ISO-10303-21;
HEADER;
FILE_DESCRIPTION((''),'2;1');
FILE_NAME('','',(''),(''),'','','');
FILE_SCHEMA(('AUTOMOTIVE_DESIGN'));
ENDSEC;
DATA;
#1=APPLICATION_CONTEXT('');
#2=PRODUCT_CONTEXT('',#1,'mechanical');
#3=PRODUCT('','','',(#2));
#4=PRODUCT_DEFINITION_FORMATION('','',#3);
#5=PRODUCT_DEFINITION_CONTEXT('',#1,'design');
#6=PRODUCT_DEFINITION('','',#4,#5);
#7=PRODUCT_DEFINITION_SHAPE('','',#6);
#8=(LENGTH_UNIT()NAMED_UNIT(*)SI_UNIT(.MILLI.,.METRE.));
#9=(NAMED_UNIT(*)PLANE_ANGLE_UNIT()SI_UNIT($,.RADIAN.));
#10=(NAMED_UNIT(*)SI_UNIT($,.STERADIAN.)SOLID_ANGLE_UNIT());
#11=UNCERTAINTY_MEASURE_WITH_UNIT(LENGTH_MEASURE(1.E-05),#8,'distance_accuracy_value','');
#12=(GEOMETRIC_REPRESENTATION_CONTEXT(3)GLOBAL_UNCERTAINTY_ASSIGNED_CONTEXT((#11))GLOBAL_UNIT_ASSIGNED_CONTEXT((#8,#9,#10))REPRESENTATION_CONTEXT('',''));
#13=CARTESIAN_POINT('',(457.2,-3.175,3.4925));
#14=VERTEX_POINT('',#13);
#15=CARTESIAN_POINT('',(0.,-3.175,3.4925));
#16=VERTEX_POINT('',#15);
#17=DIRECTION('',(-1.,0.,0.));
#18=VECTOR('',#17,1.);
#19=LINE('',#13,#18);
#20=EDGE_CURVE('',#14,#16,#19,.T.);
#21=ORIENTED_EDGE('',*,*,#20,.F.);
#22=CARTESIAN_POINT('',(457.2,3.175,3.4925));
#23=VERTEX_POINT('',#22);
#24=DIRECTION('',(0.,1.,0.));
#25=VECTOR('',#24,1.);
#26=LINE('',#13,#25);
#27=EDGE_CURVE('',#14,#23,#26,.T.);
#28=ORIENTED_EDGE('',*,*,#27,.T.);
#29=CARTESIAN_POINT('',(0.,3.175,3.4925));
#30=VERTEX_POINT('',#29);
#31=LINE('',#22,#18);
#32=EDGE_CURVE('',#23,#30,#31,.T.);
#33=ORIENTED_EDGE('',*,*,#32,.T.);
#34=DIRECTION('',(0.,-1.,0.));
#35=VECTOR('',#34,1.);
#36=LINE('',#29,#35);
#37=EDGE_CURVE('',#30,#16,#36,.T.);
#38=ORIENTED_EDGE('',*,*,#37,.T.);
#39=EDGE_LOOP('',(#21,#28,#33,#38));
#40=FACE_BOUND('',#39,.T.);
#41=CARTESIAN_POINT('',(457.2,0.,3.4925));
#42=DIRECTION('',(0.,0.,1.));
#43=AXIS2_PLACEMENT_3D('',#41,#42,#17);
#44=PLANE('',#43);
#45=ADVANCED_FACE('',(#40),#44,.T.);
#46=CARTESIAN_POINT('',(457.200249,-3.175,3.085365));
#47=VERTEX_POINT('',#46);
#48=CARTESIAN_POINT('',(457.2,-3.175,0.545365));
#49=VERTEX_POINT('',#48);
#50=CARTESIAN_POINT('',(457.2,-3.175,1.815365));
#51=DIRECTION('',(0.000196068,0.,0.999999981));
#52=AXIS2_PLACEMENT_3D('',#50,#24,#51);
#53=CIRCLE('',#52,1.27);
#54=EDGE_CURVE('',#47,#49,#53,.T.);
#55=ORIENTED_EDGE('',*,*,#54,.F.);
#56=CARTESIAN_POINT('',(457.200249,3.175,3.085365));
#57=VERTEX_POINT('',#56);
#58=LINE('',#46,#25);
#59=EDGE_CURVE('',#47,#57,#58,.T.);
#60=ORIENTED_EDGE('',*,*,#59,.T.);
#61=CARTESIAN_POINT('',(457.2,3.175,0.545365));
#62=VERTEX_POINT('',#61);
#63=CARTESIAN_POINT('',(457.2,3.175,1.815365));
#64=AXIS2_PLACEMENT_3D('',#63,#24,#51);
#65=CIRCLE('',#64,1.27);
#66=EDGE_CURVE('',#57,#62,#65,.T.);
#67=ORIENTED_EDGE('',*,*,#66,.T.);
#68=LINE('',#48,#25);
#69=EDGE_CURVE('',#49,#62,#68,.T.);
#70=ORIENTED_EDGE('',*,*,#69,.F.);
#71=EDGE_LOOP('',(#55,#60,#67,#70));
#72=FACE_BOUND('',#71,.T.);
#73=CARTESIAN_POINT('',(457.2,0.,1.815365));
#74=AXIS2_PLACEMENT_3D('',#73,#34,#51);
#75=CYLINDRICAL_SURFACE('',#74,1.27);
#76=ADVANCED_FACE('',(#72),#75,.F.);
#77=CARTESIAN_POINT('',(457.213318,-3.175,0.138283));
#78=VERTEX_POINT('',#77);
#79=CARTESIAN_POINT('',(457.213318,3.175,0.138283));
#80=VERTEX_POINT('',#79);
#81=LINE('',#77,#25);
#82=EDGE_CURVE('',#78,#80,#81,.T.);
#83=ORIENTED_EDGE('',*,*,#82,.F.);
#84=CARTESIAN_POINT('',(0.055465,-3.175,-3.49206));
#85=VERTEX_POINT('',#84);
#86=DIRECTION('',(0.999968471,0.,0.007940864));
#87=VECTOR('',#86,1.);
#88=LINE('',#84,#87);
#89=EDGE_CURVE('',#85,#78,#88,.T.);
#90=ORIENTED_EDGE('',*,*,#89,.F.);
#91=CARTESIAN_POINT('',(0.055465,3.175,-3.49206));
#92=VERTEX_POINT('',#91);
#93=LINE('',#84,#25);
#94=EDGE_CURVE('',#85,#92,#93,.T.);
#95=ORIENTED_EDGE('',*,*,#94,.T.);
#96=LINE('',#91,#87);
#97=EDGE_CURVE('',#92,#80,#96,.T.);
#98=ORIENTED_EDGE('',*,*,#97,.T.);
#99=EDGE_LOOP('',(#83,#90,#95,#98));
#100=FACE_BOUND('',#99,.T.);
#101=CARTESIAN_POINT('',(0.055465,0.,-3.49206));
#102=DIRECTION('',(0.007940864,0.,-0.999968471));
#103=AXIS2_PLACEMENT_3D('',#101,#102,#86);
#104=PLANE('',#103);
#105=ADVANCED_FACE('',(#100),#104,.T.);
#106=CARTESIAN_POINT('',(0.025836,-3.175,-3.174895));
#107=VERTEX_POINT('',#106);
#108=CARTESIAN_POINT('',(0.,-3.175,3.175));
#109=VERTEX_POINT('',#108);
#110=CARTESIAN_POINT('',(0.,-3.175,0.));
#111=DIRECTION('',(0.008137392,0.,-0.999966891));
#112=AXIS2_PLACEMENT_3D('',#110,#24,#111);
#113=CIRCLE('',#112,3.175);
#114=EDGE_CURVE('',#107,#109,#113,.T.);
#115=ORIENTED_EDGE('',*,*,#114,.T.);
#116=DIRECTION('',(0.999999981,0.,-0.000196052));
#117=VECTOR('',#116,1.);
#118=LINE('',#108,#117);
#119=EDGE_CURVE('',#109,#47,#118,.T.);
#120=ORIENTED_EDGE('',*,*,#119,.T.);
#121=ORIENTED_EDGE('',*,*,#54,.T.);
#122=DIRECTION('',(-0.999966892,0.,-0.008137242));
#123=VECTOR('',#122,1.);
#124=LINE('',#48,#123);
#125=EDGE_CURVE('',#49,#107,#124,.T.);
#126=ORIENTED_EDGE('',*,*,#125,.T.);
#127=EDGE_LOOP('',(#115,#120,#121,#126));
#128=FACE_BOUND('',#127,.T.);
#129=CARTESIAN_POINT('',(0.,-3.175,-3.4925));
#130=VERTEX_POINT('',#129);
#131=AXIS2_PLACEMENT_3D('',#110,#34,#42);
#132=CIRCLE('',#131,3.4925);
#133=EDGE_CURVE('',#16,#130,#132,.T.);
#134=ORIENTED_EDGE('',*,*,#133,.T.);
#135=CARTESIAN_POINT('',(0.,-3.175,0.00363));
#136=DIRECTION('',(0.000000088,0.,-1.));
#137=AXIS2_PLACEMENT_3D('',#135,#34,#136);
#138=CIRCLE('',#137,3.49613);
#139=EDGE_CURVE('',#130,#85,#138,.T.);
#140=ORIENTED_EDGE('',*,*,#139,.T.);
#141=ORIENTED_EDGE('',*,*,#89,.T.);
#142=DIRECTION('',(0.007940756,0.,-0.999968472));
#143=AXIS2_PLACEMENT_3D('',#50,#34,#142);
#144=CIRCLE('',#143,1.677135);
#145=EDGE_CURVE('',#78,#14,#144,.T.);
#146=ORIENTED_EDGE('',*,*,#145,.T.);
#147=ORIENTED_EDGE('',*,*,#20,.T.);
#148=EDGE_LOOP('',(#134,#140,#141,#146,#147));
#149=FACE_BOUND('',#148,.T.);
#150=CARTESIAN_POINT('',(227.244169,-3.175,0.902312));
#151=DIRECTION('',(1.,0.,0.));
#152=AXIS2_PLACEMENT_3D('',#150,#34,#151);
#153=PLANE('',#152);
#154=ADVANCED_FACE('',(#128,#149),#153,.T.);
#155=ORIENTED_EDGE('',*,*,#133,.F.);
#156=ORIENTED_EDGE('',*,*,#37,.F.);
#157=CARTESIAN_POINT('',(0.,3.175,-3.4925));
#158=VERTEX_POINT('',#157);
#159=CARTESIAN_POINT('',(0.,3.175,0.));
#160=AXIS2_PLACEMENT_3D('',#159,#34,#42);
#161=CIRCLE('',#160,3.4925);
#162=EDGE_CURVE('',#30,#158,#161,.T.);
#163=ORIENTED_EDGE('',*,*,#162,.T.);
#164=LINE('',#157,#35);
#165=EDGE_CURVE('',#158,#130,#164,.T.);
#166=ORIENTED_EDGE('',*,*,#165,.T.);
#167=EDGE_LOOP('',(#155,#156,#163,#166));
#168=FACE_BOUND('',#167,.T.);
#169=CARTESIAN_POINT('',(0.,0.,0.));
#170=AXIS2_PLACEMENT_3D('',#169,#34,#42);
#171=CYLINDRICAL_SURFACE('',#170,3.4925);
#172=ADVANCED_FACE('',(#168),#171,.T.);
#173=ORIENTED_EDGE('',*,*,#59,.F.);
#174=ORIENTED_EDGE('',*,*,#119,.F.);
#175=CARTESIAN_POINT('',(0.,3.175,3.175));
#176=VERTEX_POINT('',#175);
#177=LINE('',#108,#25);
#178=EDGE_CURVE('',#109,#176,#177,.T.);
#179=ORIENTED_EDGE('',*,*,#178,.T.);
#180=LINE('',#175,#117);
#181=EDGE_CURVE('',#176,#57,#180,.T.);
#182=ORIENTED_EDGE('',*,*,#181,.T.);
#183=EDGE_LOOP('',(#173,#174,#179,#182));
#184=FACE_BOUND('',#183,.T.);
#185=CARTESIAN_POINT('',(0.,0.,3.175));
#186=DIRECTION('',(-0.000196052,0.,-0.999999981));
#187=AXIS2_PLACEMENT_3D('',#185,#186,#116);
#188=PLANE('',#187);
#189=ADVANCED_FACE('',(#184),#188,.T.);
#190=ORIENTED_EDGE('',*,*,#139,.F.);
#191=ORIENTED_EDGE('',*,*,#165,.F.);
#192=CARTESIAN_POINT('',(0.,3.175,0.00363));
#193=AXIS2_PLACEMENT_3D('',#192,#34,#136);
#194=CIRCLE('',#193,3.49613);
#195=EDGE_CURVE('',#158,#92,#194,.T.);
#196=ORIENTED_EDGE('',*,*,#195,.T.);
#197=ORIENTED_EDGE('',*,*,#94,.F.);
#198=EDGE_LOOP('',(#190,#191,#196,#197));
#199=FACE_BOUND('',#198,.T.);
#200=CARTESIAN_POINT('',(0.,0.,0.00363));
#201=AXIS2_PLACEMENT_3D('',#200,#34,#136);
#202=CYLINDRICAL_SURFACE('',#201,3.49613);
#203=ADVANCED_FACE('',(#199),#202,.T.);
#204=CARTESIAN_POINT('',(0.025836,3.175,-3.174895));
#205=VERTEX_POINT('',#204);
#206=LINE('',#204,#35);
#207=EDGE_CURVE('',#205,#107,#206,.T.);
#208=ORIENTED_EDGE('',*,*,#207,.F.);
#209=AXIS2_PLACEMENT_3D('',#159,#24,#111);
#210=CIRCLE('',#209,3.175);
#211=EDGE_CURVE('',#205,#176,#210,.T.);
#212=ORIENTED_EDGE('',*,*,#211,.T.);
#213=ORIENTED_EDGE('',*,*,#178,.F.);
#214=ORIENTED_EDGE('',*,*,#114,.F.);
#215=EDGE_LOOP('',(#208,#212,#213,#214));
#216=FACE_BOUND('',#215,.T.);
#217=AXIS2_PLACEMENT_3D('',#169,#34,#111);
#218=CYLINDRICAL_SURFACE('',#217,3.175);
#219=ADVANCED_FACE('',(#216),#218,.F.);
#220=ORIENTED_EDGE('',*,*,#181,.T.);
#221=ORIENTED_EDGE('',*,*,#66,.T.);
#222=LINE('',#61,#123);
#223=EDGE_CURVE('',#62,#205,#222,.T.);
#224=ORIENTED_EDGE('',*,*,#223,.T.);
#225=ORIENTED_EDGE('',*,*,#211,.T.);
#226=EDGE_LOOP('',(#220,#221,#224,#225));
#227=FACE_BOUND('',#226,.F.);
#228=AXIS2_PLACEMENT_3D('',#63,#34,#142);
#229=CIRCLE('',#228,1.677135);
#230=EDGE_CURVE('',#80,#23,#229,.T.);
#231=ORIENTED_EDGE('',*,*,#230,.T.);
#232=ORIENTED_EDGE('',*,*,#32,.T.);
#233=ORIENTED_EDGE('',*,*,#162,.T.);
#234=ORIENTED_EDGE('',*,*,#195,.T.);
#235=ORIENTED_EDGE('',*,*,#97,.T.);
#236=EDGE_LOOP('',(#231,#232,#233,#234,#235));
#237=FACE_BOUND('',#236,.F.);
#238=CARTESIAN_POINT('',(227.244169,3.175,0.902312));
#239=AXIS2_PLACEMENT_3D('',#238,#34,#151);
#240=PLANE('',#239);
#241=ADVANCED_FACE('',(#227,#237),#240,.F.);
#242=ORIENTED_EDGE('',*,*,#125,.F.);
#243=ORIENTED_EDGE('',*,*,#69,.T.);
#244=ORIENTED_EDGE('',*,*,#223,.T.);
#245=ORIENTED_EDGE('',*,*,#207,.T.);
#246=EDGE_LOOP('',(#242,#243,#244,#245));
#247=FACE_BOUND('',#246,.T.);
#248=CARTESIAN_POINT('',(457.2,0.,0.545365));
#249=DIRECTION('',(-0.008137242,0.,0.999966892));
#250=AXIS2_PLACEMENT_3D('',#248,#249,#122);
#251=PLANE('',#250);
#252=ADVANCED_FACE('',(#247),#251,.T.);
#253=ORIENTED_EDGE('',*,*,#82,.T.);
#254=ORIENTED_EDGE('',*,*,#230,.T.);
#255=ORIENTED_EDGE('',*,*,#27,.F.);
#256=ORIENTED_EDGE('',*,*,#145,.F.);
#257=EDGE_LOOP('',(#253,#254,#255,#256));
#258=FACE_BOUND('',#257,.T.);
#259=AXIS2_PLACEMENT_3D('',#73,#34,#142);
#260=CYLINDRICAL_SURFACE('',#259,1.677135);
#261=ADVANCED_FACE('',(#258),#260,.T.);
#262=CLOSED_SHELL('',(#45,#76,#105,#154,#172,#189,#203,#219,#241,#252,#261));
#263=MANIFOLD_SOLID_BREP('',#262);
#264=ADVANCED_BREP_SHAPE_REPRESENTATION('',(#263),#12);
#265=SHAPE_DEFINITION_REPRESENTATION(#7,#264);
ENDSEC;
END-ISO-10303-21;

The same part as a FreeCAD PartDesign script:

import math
import FreeCAD as App
import Part
import Sketcher
Q = App.Units.Quantity

doc = App.newDocument("Part")
body = doc.addObject("PartDesign::Body", "Body")

# Sketch on XZ plane
sketch1 = doc.addObject("Sketcher::SketchObject", "Sketch")
body.addObject(sketch1)
sketch1.AttachmentSupport = (doc.XZ_Plane, [""])
sketch1.MapMode = "FlatFace"
sketch1.addGeometry(Part.LineSegment(App.Vector(457.2, 3.4925, 0), App.Vector(0, 3.4925, 0)), False)
sketch1.addGeometry(Part.ArcOfCircle(Part.Circle(App.Vector(0, 0, 0), App.Vector(0, 0, 1), 3.4925), math.radians(90), math.radians(270)), False)
sketch1.addGeometry(Part.ArcOfCircle(Part.Circle(App.Vector(0, 0.00363, 0), App.Vector(0, 0, 1), 3.49613), math.radians(-89.999995), math.radians(-89.090977)), False)
sketch1.addGeometry(Part.LineSegment(App.Vector(0.055465, -3.49206, 0), App.Vector(457.213318, 0.138283, 0)), False)
sketch1.addGeometry(Part.ArcOfCircle(Part.Circle(App.Vector(457.2, 1.815365, 0), App.Vector(0, 0, 1), 1.677135), math.radians(-89.545023), math.radians(90.00001)), False)
sketch1.addGeometry(Part.LineSegment(App.Vector(457.2, 0.545365, 0), App.Vector(0.025836, -3.174895, 0)), False)
sketch1.addGeometry(Part.ArcOfCircle(Part.Circle(App.Vector(0, 0, 0), App.Vector(0, 0, 1), 3.175), math.radians(89.999996), math.radians(270.466243)), False)
sketch1.addGeometry(Part.LineSegment(App.Vector(0, 3.175, 0), App.Vector(457.200249, 3.085365, 0)), False)
sketch1.addGeometry(Part.ArcOfCircle(Part.Circle(App.Vector(457.2, 1.815365, 0), App.Vector(0, 0, 1), 1.27), math.radians(-90), math.radians(89.988766)), False)
sketch1.addConstraint(Sketcher.Constraint("Tangent", 0, 2, 1, 1))
sketch1.addConstraint(Sketcher.Constraint("Tangent", 1, 2, 2, 1))
sketch1.addConstraint(Sketcher.Constraint("Coincident", 2, 2, 3, 1))
sketch1.addConstraint(Sketcher.Constraint("Tangent", 3, 2, 4, 1))
sketch1.addConstraint(Sketcher.Constraint("Tangent", 4, 2, 0, 1))
sketch1.addConstraint(Sketcher.Constraint("Tangent", 5, 2, 6, 2))
sketch1.addConstraint(Sketcher.Constraint("Coincident", 6, 1, 7, 1))
sketch1.addConstraint(Sketcher.Constraint("Tangent", 7, 2, 8, 2))
sketch1.addConstraint(Sketcher.Constraint("Coincident", 8, 1, 5, 1))
sketch1.addConstraint(Sketcher.Constraint("Horizontal", 0))
sketch1.addConstraint(Sketcher.Constraint("Coincident", 1, 3, -1, 1))
sketch1.addConstraint(Sketcher.Constraint("Coincident", 6, 3, -1, 1))
sketch1.addConstraint(Sketcher.Constraint("Coincident", 8, 3, 4, 3))
sketch1.addConstraint(Sketcher.Constraint("PointOnObject", 2, 3, -2))
sketch1.addConstraint(Sketcher.Constraint("PointOnObject", 6, 1, -2))
sketch1.addConstraint(Sketcher.Constraint("Vertical", 4, 2, 8, 1))
sketch1.addConstraint(Sketcher.Constraint("DistanceX", 0, 2, 0, 1, Q("18 in")))
sketch1.addConstraint(Sketcher.Constraint("Radius", 8, Q("0.05 in")))
sketch1.addConstraint(Sketcher.Constraint("Radius", 6, Q("0.125 in")))
sketch1.addConstraint(Sketcher.Constraint("Radius", 1, Q("0.1375 in")))
sketch1.addConstraint(Sketcher.Constraint("Radius", 2, 3.49613))
sketch1.addConstraint(Sketcher.Constraint("Radius", 4, 1.677135))
sketch1.addConstraint(Sketcher.Constraint("DistanceY", 2, 2, -1, 1, 3.49206))
pad1 = doc.addObject("PartDesign::Pad", "Pad")
body.addObject(pad1)
pad1.Profile = sketch1
pad1.Length = Q("0.25 in")
pad1.Midplane = True

doc.recompute()
